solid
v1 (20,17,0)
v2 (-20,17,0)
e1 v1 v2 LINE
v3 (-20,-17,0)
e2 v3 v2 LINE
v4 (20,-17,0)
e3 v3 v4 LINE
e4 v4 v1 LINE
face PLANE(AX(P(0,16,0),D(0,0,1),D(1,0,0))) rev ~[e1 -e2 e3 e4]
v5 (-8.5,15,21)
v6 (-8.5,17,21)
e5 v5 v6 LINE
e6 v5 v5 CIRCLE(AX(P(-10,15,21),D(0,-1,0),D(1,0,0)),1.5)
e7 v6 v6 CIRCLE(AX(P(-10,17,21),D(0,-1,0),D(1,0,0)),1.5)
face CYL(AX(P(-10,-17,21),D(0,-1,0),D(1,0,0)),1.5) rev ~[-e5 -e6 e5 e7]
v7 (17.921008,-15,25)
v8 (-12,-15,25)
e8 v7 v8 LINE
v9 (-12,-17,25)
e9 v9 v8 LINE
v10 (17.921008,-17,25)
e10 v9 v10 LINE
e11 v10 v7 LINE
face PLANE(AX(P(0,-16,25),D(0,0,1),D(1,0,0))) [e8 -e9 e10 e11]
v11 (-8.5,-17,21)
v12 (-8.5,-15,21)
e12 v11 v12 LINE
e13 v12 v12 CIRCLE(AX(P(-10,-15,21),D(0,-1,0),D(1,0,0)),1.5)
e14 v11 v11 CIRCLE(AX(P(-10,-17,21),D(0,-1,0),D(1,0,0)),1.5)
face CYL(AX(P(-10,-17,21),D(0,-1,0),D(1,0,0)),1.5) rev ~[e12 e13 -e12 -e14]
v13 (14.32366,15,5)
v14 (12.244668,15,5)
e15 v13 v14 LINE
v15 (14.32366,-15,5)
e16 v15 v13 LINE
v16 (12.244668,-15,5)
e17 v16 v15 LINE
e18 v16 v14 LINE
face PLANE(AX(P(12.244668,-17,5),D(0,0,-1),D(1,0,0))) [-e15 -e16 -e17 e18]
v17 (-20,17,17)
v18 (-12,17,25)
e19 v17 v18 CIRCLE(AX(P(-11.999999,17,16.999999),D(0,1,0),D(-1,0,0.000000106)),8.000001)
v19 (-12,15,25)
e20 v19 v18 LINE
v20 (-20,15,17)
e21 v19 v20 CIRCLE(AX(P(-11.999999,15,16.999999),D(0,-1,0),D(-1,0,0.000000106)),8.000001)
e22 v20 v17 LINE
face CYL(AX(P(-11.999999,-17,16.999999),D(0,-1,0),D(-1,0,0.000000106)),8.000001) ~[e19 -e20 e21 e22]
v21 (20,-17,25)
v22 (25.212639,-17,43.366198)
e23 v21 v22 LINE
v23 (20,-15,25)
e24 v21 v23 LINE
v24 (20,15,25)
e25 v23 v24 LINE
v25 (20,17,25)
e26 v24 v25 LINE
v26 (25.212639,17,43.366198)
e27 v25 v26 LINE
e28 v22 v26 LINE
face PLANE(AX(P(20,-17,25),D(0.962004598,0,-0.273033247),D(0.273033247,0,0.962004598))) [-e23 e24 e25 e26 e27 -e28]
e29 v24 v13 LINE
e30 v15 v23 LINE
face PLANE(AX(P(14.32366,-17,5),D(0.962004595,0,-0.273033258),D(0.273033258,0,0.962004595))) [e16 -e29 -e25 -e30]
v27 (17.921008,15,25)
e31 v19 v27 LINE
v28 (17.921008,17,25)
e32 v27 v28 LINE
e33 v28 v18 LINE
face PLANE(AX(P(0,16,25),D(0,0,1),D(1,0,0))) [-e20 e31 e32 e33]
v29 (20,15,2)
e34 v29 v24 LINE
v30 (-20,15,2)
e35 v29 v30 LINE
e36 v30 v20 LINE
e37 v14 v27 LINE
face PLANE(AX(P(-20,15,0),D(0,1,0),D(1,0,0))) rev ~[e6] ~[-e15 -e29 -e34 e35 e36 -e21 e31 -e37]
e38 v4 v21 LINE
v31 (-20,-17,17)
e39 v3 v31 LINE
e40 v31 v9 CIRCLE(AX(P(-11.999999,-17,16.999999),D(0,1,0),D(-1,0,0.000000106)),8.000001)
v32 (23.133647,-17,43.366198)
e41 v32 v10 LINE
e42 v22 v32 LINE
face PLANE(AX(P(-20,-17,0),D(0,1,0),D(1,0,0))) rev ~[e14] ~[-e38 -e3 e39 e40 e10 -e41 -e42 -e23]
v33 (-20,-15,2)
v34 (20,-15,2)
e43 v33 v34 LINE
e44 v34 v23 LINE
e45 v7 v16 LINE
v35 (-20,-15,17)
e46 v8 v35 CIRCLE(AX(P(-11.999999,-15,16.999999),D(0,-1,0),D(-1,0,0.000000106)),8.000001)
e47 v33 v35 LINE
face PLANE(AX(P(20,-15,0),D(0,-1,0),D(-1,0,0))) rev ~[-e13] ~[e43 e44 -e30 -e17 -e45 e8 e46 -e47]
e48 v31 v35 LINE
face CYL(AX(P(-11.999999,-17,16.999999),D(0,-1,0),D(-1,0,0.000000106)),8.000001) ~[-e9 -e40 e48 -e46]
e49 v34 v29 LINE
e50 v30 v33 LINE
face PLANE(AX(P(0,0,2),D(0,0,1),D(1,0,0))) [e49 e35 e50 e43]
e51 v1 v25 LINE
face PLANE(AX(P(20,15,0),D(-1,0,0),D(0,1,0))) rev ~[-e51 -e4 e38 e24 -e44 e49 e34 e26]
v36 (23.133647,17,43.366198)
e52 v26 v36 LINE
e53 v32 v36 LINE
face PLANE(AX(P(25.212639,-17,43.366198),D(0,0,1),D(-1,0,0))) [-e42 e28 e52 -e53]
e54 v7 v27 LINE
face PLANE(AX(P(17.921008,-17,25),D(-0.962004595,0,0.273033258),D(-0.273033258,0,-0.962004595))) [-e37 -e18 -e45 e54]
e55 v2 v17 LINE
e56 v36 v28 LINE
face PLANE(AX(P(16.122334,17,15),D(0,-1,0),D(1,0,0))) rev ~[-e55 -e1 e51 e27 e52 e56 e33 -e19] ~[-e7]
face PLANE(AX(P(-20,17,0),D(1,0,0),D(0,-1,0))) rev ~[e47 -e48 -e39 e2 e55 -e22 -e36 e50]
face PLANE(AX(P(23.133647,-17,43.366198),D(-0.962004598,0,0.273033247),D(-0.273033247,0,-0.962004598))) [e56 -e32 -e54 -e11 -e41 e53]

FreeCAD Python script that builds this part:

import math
import FreeCAD as App
import Part
import Sketcher
from FreeCAD import Vector
Q = App.Units.Quantity


def add_polygon(sketch, points):
    """Adds a closed chain of lines whose ends are joined by coincident constraints."""
    first, n = sketch.GeometryCount, len(points)
    for a, b in zip(points, points[1:] + points[:1]):
        sketch.addGeometry(Part.LineSegment(App.Vector(*a, 0), App.Vector(*b, 0)), False)
    for i in range(n):
        sketch.addConstraint(Sketcher.Constraint("Coincident", first + i, 2, first + (i + 1) % n, 1))

doc = App.newDocument("Part")
body = doc.addObject("PartDesign::Body", "Body")

sketch1 = body.newObject("Sketcher::SketchObject", "Sketch")
sketch1.AttachmentSupport = (doc.getObject("XY_Plane"), [""])
sketch1.MapMode = "FlatFace"
add_polygon(sketch1, [(20, -15), (20, 15), (-20, 15), (-20, -15)])
sketch1.addConstraint(Sketcher.Constraint("Vertical", 0))
sketch1.addConstraint(Sketcher.Constraint("Horizontal", 1))
sketch1.addConstraint(Sketcher.Constraint("Vertical", 2))
sketch1.addConstraint(Sketcher.Constraint("Horizontal", 3))
sketch1.addConstraint(Sketcher.Constraint("Symmetric", 0, 2, 2, 2, -1, 1))
sketch1.addConstraint(Sketcher.Constraint("DistanceX", 1, 2, 1, 1, Q("40 mm")))
sketch1.addConstraint(Sketcher.Constraint("DistanceY", 0, 1, 0, 2, Q("30 mm")))
pad1 = body.newObject("PartDesign::Pad", "Pad")
pad1.Profile = sketch1
pad1.Length = 2

sketch2 = body.newObject("Sketcher::SketchObject", "Sketch001")
sketch2.AttachmentSupport = (doc.getObject("XY_Plane"), [""])
sketch2.MapMode = "FlatFace"
add_polygon(sketch2, [(20, 15), (20, 17), (-20, 17), (-20, 15)])
add_polygon(sketch2, [(-20, -17), (20, -17), (20, -15), (-20, -15)])
sketch2.addConstraint(Sketcher.Constraint("Vertical", 0))
sketch2.addConstraint(Sketcher.Constraint("Horizontal", 1))
sketch2.addConstraint(Sketcher.Constraint("Vertical", 2))
sketch2.addConstraint(Sketcher.Constraint("Horizontal", 3))
sketch2.addConstraint(Sketcher.Constraint("Horizontal", 4))
sketch2.addConstraint(Sketcher.Constraint("Vertical", 5))
sketch2.addConstraint(Sketcher.Constraint("Horizontal", 6))
sketch2.addConstraint(Sketcher.Constraint("Vertical", 7))
sketch2.addConstraint(Sketcher.Constraint("Symmetric", 1, 2, 4, 2, -1, 1))
sketch2.addConstraint(Sketcher.Constraint("Symmetric", 3, 2, 6, 2, -1, 1))
sketch2.addConstraint(Sketcher.Constraint("Vertical", 3, 2, 4, 2))
sketch2.addConstraint(Sketcher.Constraint("DistanceX", 1, 2, 1, 1, Q("40 mm")))
sketch2.addConstraint(Sketcher.Constraint("DistanceY", 0, 1, 0, 2, Q("2 mm")))
sketch2.addConstraint(Sketcher.Constraint("DistanceY", -1, 1, 0, 2, Q("17 mm")))
pad2 = body.newObject("PartDesign::Pad", "Pad001")
pad2.Profile = sketch2
pad2.Length = 25

sketch3 = body.newObject("Sketcher::SketchObject", "Sketch002")
sketch3.AttachmentSupport = (doc.getObject("XZ_Plane"), [""])
sketch3.MapMode = "FlatFace"
sketch3.AttachmentOffset = App.Placement(Vector(0, 0, 17), App.Rotation())
sketch3.addGeometry(Part.ArcOfCircle(Part.Circle(Vector(-12, 17, 0), Vector(0, 0, 1), 8), math.radians(90), math.radians(180)), False)
sketch3.addGeometry(Part.LineSegment(Vector(-12, 25, 0), Vector(-20, 25, 0)), False)
sketch3.addGeometry(Part.LineSegment(Vector(-20, 25, 0), Vector(-20, 17, 0)), False)
sketch3.addGeometry(Part.Circle(Vector(-10, 21, 0), Vector(0, 0, 1), 1.5), False)
sketch3.addConstraint(Sketcher.Constraint("Tangent", 0, 1, 1, 1))
sketch3.addConstraint(Sketcher.Constraint("Coincident", 1, 2, 2, 1))
sketch3.addConstraint(Sketcher.Constraint("Tangent", 2, 2, 0, 2))
sketch3.addConstraint(Sketcher.Constraint("Horizontal", 1))
sketch3.addConstraint(Sketcher.Constraint("Vertical", 2))
sketch3.addConstraint(Sketcher.Constraint("Diameter", 3, Q("3 mm")))
sketch3.addConstraint(Sketcher.Constraint("Radius", 0, Q("8.000001 mm")))
sketch3.addConstraint(Sketcher.Constraint("DistanceX", 0, 3, -1, 1, Q("11.999999 mm")))
sketch3.addConstraint(Sketcher.Constraint("DistanceY", -1, 1, 0, 3, Q("16.999999 mm")))
sketch3.addConstraint(Sketcher.Constraint("DistanceX", 3, 3, -1, 1, Q("10 mm")))
sketch3.addConstraint(Sketcher.Constraint("DistanceY", -1, 1, 3, 3, Q("21 mm")))
pocket1 = body.newObject("PartDesign::Pocket", "Pocket")
pocket1.Profile = sketch3
pocket1.Length = 34

sketch4 = body.newObject("Sketcher::SketchObject", "Sketch003")
sketch4.AttachmentSupport = (doc.getObject("XZ_Plane"), [""])
sketch4.MapMode = "FlatFace"
sketch4.AttachmentOffset = App.Placement(Vector(0, 0, 17), App.Rotation())
add_polygon(sketch4, [(17.9, 25), (12.2, 5), (14.3, 5), (20, 25), (25.2, 43.4), (23.1, 43.4)])
sketch4.addConstraint(Sketcher.Constraint("Horizontal", 1))
sketch4.addConstraint(Sketcher.Constraint("Horizontal", 4))
sketch4.addConstraint(Sketcher.Constraint("Parallel", 0, 2))
sketch4.addConstraint(Sketcher.Constraint("Parallel", 2, 3))
sketch4.addConstraint(Sketcher.Constraint("Parallel", 3, 5))
sketch4.addConstraint(Sketcher.Constraint("Horizontal", 2, 2, 5, 2))
sketch4.addConstraint(Sketcher.Constraint("DistanceY", -1, 1, 0, 2, Q("5 mm")))
sketch4.addConstraint(Sketcher.Constraint("DistanceX", -1, 1, 2, 2, Q("20 mm")))
sketch4.addConstraint(Sketcher.Constraint("DistanceY", -1, 1, 2, 2, Q("25 mm")))
sketch4.addConstraint(Sketcher.Constraint("DistanceX", 1, 1, 1, 2, Q("2.078992 mm")))
sketch4.addConstraint(Sketcher.Constraint("Distance", 0, Q("20.789921 mm")))
sketch4.addConstraint(Sketcher.Constraint("Distance", 3, Q("19.091591 mm")))
pad3 = body.newObject("PartDesign::Pad", "Pad002")
pad3.Profile = sketch4
pad3.Length = 34
pad3.Reversed = True

doc.recompute()
